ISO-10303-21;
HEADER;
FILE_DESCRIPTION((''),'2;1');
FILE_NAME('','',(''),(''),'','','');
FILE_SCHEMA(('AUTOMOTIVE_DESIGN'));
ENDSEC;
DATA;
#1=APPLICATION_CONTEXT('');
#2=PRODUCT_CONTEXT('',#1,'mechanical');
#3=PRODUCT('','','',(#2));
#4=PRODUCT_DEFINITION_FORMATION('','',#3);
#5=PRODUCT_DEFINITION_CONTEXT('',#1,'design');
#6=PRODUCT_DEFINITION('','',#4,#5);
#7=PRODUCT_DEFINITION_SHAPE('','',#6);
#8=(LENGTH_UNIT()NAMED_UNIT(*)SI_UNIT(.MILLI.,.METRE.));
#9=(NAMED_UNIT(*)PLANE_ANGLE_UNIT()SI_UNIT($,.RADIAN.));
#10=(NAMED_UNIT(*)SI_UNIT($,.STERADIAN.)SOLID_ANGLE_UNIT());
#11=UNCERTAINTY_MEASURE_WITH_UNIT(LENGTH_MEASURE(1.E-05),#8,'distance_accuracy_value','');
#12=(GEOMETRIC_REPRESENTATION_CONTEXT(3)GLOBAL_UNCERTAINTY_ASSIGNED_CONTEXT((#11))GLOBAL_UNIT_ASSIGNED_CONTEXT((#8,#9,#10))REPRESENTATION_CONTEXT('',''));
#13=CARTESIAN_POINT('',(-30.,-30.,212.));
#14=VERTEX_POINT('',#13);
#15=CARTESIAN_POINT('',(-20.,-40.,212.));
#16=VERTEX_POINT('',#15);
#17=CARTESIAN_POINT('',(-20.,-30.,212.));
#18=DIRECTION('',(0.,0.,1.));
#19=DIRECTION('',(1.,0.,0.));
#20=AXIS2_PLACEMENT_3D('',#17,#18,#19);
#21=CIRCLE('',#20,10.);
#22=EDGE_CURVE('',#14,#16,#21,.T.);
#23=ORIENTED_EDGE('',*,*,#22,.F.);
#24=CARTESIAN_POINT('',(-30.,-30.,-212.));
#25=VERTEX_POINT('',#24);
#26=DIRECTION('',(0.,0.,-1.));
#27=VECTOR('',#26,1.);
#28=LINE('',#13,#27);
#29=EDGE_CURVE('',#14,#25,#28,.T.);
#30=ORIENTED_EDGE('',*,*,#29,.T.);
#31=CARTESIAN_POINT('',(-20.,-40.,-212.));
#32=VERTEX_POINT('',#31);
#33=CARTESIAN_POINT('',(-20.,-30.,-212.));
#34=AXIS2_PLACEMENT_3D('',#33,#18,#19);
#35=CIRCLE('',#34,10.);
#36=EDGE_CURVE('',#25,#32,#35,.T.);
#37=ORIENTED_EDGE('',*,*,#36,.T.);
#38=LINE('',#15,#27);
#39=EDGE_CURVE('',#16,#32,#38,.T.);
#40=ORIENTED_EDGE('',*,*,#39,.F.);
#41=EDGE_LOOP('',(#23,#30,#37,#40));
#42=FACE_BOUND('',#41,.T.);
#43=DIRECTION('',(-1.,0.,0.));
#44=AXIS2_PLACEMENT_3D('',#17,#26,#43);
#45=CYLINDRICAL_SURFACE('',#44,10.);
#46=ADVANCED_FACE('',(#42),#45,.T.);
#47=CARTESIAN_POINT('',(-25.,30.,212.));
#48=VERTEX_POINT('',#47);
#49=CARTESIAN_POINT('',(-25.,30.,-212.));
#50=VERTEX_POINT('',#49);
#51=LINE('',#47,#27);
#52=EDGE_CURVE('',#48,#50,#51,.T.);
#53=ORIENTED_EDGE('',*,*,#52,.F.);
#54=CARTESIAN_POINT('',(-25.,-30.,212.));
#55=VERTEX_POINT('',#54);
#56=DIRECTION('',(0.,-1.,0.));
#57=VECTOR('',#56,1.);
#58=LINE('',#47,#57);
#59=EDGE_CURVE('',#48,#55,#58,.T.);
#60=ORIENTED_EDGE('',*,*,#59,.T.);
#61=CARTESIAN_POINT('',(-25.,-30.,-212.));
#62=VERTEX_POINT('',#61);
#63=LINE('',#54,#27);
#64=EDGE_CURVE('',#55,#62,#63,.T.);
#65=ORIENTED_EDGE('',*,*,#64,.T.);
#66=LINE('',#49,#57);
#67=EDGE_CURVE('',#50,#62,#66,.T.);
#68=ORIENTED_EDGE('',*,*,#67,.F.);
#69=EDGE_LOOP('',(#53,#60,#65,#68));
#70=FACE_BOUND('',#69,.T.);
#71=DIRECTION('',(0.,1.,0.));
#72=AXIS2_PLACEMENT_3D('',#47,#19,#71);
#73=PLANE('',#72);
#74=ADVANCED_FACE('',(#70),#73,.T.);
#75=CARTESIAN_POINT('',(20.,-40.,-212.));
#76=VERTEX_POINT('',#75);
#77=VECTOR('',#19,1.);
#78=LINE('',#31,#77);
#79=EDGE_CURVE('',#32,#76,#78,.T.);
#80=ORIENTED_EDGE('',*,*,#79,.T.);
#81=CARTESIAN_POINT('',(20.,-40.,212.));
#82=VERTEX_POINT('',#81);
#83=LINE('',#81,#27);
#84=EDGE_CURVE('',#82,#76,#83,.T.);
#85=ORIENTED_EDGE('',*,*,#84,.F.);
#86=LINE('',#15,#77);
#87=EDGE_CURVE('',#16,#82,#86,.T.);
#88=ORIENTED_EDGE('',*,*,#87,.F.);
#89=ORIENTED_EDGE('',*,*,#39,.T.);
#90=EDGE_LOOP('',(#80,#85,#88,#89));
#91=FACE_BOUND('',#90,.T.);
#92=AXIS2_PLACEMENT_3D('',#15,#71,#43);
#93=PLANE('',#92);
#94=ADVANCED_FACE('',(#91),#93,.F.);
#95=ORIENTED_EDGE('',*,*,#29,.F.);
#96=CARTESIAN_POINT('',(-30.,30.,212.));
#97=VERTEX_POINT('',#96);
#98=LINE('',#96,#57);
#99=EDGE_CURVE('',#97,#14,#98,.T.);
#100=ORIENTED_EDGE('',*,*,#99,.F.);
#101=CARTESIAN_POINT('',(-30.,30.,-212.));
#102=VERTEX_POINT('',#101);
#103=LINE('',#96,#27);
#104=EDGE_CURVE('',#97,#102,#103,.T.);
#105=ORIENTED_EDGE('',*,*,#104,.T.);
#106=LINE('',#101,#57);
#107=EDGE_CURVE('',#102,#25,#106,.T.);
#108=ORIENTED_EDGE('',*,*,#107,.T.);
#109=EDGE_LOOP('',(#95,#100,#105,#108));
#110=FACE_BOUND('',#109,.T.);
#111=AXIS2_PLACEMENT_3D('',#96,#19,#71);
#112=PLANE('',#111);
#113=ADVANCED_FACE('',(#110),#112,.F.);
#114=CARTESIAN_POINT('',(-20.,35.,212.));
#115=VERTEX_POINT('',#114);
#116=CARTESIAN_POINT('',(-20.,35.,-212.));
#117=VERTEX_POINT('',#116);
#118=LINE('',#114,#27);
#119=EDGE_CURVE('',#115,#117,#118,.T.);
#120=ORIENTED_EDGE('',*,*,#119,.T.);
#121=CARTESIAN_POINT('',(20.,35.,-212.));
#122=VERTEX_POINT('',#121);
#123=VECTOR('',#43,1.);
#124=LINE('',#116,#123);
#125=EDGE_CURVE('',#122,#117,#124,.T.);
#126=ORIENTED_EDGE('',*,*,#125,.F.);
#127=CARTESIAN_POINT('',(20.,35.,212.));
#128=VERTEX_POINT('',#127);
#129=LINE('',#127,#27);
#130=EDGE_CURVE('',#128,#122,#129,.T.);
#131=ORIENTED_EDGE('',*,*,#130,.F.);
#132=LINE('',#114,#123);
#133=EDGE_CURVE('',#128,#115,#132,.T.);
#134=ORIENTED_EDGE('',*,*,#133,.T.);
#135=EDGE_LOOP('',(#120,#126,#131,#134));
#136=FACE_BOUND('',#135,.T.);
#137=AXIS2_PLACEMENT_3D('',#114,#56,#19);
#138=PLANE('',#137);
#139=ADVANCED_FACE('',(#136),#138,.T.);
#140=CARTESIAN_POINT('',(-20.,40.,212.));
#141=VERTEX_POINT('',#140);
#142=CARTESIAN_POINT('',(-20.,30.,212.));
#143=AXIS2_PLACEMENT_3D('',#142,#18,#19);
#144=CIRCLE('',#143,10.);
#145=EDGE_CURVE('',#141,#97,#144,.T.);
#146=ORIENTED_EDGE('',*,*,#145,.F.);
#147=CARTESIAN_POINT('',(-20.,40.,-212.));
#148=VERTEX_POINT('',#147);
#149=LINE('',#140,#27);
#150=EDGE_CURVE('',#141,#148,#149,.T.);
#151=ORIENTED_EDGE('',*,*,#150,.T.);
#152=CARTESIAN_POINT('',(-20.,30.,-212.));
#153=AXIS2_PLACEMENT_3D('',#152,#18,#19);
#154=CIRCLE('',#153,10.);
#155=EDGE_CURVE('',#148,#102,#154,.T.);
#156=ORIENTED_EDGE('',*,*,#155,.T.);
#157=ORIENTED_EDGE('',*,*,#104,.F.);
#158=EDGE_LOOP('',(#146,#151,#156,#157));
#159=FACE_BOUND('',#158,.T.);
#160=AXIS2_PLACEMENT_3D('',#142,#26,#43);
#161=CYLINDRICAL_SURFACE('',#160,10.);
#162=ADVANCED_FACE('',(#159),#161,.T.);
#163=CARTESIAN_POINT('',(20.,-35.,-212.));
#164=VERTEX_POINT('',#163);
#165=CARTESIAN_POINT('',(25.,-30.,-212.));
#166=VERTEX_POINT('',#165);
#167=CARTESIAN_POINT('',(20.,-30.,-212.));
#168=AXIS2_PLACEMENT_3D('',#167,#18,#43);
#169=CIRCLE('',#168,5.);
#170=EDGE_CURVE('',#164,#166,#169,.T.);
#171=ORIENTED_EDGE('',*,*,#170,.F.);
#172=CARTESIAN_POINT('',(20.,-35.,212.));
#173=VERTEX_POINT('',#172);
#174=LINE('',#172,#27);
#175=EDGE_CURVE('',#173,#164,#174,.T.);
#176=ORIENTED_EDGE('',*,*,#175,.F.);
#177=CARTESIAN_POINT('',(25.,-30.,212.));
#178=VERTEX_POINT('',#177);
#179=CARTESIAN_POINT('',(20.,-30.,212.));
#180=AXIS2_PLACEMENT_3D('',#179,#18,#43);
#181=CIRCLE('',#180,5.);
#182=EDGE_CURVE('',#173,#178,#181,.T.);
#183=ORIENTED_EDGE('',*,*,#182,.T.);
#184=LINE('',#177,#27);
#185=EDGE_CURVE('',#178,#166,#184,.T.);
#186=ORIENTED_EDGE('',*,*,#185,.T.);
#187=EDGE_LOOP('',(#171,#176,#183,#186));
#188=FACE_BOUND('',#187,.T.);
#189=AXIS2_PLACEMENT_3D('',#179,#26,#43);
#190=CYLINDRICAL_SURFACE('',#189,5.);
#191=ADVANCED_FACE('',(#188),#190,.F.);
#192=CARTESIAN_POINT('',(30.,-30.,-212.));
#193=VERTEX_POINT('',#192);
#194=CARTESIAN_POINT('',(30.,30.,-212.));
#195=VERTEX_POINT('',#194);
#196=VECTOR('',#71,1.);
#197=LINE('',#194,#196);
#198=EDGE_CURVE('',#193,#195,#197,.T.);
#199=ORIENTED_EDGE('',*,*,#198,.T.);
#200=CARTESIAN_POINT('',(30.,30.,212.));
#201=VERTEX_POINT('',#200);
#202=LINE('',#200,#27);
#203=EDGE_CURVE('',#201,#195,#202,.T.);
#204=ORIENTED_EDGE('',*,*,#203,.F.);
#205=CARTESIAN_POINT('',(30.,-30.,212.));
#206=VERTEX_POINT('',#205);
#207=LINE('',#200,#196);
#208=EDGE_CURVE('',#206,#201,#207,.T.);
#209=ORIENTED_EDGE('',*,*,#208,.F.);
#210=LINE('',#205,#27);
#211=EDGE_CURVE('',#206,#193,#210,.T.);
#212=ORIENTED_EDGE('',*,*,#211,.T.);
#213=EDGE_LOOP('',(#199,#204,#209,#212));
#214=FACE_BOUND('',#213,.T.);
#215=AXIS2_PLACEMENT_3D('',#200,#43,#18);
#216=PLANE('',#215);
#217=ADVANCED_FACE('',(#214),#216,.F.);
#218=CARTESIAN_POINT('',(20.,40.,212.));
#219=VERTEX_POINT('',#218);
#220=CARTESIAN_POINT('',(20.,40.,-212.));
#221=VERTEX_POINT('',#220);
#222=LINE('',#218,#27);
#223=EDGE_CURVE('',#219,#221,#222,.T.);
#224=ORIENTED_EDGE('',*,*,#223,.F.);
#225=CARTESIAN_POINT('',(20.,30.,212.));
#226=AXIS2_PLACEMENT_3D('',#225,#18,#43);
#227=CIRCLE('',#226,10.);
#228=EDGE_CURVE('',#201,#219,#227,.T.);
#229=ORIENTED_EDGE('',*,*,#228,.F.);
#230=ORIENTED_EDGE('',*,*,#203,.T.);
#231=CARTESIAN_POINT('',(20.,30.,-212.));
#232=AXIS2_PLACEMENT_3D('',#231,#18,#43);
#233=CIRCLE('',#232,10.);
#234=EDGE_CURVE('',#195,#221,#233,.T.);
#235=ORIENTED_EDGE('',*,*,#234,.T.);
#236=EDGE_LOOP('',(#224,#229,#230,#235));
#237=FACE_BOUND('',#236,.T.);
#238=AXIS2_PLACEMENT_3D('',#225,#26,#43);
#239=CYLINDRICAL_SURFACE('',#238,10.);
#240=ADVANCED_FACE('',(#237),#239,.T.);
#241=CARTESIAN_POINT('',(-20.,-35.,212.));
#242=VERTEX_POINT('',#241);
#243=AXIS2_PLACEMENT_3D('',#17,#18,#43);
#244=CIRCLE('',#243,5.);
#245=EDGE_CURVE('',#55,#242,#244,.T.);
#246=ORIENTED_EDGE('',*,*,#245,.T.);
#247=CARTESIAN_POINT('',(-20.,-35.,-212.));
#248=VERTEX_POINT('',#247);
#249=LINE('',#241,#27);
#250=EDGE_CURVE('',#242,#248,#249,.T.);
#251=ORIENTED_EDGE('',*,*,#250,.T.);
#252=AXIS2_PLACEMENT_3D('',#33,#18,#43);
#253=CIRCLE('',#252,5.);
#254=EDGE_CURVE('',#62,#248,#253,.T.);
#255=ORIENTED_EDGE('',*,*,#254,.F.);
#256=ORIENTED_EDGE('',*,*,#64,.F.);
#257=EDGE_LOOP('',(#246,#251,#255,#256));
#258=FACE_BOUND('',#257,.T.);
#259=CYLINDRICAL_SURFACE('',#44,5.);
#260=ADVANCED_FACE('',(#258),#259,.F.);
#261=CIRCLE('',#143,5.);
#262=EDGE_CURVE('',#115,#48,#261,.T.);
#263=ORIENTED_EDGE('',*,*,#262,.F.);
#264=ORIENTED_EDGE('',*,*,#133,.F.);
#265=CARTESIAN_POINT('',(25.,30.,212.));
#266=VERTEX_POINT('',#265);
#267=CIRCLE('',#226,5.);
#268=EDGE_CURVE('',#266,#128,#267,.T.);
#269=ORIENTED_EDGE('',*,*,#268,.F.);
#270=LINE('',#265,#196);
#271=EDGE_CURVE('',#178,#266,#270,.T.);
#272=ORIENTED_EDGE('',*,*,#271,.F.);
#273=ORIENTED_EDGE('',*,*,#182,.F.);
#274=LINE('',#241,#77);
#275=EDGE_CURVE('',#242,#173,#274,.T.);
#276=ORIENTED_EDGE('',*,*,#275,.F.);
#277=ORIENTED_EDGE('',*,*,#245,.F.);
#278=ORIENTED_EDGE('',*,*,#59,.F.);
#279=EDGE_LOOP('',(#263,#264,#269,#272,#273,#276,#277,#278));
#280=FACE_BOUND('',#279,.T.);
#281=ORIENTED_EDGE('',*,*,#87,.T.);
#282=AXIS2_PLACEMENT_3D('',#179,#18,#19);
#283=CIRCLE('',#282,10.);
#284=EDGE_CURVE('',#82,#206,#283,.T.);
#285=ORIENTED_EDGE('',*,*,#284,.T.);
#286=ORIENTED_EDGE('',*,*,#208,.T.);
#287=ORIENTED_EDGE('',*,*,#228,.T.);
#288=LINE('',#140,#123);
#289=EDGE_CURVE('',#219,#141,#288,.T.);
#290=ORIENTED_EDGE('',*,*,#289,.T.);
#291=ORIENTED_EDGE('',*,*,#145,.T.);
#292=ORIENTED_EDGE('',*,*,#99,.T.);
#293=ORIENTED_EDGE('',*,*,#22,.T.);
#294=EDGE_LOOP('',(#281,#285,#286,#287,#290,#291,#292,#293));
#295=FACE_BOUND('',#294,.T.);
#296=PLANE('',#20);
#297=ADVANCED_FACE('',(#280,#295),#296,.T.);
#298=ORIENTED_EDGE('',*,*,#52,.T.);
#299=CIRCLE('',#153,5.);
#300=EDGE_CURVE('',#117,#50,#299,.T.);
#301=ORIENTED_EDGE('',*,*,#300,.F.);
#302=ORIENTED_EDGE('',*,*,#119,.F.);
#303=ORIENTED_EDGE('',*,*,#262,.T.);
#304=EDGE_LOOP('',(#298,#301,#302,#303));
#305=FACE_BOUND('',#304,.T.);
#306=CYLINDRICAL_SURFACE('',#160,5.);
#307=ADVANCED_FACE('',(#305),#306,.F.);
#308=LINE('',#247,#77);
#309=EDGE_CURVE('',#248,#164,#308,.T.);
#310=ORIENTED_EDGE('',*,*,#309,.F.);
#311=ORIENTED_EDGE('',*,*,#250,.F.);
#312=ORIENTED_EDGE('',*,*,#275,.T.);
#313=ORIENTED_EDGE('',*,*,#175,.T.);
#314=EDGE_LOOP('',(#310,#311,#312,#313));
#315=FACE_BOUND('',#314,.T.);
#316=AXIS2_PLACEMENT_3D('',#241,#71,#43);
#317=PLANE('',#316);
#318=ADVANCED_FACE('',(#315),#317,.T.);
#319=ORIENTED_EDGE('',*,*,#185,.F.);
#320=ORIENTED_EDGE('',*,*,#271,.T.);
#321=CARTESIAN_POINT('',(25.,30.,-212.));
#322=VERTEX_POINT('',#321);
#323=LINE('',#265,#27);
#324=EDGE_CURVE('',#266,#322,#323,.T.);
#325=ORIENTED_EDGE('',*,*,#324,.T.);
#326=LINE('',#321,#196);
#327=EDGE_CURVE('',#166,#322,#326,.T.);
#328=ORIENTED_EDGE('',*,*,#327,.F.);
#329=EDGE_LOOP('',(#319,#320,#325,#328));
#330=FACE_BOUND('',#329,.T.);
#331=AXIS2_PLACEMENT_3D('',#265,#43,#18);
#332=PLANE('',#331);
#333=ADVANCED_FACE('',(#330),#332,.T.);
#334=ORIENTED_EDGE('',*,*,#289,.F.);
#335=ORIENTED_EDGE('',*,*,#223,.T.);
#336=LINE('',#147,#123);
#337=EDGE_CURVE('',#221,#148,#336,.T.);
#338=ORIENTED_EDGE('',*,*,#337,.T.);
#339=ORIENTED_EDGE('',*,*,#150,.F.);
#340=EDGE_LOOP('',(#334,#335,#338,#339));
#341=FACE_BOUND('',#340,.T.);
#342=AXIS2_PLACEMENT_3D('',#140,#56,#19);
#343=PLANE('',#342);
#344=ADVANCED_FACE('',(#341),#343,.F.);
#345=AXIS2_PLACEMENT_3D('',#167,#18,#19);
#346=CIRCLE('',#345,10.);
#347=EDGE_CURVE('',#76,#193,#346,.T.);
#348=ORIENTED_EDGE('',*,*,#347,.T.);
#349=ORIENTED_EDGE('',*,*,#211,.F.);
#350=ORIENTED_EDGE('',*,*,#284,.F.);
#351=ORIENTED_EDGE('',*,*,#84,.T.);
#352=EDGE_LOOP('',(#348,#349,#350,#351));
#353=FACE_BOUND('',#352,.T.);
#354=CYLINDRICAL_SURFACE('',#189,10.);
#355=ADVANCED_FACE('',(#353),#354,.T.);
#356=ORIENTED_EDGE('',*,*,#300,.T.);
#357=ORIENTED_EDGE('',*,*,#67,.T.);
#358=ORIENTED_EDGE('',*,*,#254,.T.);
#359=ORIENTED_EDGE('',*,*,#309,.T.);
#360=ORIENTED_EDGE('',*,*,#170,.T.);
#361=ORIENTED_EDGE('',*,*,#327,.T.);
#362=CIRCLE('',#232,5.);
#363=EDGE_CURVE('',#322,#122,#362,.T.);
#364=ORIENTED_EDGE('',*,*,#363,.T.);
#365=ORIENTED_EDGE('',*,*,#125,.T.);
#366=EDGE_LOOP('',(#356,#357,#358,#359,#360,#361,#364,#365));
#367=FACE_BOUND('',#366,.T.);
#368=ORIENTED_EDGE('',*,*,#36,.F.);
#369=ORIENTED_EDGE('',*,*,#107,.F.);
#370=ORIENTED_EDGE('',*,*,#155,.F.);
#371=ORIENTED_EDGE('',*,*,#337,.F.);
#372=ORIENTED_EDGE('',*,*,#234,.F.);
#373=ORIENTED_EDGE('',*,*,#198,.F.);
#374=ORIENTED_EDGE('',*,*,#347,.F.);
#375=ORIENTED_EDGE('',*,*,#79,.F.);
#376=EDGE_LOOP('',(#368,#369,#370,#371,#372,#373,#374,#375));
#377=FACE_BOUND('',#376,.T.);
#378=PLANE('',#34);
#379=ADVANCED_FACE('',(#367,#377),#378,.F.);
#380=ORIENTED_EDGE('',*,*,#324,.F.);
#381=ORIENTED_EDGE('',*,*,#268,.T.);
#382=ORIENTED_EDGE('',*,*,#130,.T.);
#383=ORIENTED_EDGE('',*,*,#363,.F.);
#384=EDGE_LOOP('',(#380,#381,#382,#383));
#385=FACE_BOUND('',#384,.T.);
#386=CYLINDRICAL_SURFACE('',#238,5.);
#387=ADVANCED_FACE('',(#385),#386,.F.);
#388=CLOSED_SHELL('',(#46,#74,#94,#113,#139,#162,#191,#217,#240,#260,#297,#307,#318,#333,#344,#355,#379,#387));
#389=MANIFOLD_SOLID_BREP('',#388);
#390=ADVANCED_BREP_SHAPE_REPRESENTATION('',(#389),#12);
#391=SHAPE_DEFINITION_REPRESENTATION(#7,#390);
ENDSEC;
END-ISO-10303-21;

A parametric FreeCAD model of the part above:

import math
import FreeCAD as App
import Part
import Sketcher
Q = App.Units.Quantity

doc = App.newDocument("Part")
body = doc.addObject("PartDesign::Body", "Body")

sketch1 = body.newObject("Sketcher::SketchObject", "Sketch")
sketch1.AttachmentSupport = (doc.getObject("XY_Plane"), [""])
sketch1.MapMode = "FlatFace"
sketch1.addGeometry([
    Part.LineSegment(App.Vector(20, 40, 0), App.Vector(-20, 40, 0)),
    Part.ArcOfCircle(Part.Circle(App.Vector(-20, 30, 0), App.Vector(0, 0, 1), 10), math.radians(90), math.radians(180)),
    Part.LineSegment(App.Vector(-30, 30, 0), App.Vector(-30, -30, 0)),
    Part.ArcOfCircle(Part.Circle(App.Vector(-20, -30, 0), App.Vector(0, 0, 1), 10), math.radians(180), math.radians(270)),
    Part.LineSegment(App.Vector(-20, -40, 0), App.Vector(20, -40, 0)),
    Part.ArcOfCircle(Part.Circle(App.Vector(20, -30, 0), App.Vector(0, 0, 1), 10), math.radians(-90), math.radians(0)),
    Part.LineSegment(App.Vector(30, -30, 0), App.Vector(30, 30, 0)),
    Part.ArcOfCircle(Part.Circle(App.Vector(20, 30, 0), App.Vector(0, 0, 1), 10), math.radians(0), math.radians(90)),
    Part.LineSegment(App.Vector(-20, 35, 0), App.Vector(20, 35, 0)),
    Part.ArcOfCircle(Part.Circle(App.Vector(20, 30, 0), App.Vector(0, 0, 1), 5), math.radians(0), math.radians(90)),
    Part.LineSegment(App.Vector(25, 30, 0), App.Vector(25, -30, 0)),
    Part.ArcOfCircle(Part.Circle(App.Vector(20, -30, 0), App.Vector(0, 0, 1), 5), math.radians(-90), math.radians(0)),
    Part.LineSegment(App.Vector(20, -35, 0), App.Vector(-20, -35, 0)),
    Part.ArcOfCircle(Part.Circle(App.Vector(-20, -30, 0), App.Vector(0, 0, 1), 5), math.radians(180), math.radians(270)),
    Part.LineSegment(App.Vector(-25, -30, 0), App.Vector(-25, 30, 0)),
    Part.ArcOfCircle(Part.Circle(App.Vector(-20, 30, 0), App.Vector(0, 0, 1), 5), math.radians(90), math.radians(180)),
], False)
sketch1.addConstraint([
    Sketcher.Constraint("Tangent", 0, 2, 1, 1),
    Sketcher.Constraint("Tangent", 1, 2, 2, 1),
    Sketcher.Constraint("Tangent", 2, 2, 3, 1),
    Sketcher.Constraint("Tangent", 3, 2, 4, 1),
    Sketcher.Constraint("Tangent", 4, 2, 5, 1),
    Sketcher.Constraint("Tangent", 5, 2, 6, 1),
    Sketcher.Constraint("Tangent", 6, 2, 7, 1),
    Sketcher.Constraint("Tangent", 7, 2, 0, 1),
    Sketcher.Constraint("Tangent", 8, 2, 9, 2),
    Sketcher.Constraint("Tangent", 9, 1, 10, 1),
    Sketcher.Constraint("Tangent", 10, 2, 11, 2),
    Sketcher.Constraint("Tangent", 11, 1, 12, 1),
    Sketcher.Constraint("Tangent", 12, 2, 13, 2),
    Sketcher.Constraint("Tangent", 13, 1, 14, 1),
    Sketcher.Constraint("Tangent", 14, 2, 15, 2),
    Sketcher.Constraint("Tangent", 15, 1, 8, 1),
    Sketcher.Constraint("Horizontal", 0),
    Sketcher.Constraint("Vertical", 2),
    Sketcher.Constraint("Horizontal", 4),
    Sketcher.Constraint("Vertical", 6),
    Sketcher.Constraint("Horizontal", 8),
    Sketcher.Constraint("Vertical", 10),
    Sketcher.Constraint("Horizontal", 12),
    Sketcher.Constraint("Vertical", 14),
    Sketcher.Constraint("Coincident", 9, 3, 7, 3),
    Sketcher.Constraint("Coincident", 11, 3, 5, 3),
    Sketcher.Constraint("Coincident", 13, 3, 3, 3),
    Sketcher.Constraint("Equal", 1, 3),
    Sketcher.Constraint("Equal", 3, 5),
    Sketcher.Constraint("Equal", 5, 7),
    Sketcher.Constraint("Equal", 13, 15),
    Sketcher.Constraint("Symmetric", 1, 3, 5, 3, -1, 1),
    Sketcher.Constraint("Radius", 1, Q("10 mm")),
    Sketcher.Constraint("Radius", 9, Q("5 mm")),
    Sketcher.Constraint("DistanceX", 0, 2, 0, 1, Q("40 mm")),
    Sketcher.Constraint("DistanceY", 2, 2, 2, 1, Q("60 mm")),
])
pad1 = body.newObject("PartDesign::Pad", "Pad")
pad1.Profile = sketch1
pad1.Length = 424
pad1.Midplane = True

doc.recompute()
